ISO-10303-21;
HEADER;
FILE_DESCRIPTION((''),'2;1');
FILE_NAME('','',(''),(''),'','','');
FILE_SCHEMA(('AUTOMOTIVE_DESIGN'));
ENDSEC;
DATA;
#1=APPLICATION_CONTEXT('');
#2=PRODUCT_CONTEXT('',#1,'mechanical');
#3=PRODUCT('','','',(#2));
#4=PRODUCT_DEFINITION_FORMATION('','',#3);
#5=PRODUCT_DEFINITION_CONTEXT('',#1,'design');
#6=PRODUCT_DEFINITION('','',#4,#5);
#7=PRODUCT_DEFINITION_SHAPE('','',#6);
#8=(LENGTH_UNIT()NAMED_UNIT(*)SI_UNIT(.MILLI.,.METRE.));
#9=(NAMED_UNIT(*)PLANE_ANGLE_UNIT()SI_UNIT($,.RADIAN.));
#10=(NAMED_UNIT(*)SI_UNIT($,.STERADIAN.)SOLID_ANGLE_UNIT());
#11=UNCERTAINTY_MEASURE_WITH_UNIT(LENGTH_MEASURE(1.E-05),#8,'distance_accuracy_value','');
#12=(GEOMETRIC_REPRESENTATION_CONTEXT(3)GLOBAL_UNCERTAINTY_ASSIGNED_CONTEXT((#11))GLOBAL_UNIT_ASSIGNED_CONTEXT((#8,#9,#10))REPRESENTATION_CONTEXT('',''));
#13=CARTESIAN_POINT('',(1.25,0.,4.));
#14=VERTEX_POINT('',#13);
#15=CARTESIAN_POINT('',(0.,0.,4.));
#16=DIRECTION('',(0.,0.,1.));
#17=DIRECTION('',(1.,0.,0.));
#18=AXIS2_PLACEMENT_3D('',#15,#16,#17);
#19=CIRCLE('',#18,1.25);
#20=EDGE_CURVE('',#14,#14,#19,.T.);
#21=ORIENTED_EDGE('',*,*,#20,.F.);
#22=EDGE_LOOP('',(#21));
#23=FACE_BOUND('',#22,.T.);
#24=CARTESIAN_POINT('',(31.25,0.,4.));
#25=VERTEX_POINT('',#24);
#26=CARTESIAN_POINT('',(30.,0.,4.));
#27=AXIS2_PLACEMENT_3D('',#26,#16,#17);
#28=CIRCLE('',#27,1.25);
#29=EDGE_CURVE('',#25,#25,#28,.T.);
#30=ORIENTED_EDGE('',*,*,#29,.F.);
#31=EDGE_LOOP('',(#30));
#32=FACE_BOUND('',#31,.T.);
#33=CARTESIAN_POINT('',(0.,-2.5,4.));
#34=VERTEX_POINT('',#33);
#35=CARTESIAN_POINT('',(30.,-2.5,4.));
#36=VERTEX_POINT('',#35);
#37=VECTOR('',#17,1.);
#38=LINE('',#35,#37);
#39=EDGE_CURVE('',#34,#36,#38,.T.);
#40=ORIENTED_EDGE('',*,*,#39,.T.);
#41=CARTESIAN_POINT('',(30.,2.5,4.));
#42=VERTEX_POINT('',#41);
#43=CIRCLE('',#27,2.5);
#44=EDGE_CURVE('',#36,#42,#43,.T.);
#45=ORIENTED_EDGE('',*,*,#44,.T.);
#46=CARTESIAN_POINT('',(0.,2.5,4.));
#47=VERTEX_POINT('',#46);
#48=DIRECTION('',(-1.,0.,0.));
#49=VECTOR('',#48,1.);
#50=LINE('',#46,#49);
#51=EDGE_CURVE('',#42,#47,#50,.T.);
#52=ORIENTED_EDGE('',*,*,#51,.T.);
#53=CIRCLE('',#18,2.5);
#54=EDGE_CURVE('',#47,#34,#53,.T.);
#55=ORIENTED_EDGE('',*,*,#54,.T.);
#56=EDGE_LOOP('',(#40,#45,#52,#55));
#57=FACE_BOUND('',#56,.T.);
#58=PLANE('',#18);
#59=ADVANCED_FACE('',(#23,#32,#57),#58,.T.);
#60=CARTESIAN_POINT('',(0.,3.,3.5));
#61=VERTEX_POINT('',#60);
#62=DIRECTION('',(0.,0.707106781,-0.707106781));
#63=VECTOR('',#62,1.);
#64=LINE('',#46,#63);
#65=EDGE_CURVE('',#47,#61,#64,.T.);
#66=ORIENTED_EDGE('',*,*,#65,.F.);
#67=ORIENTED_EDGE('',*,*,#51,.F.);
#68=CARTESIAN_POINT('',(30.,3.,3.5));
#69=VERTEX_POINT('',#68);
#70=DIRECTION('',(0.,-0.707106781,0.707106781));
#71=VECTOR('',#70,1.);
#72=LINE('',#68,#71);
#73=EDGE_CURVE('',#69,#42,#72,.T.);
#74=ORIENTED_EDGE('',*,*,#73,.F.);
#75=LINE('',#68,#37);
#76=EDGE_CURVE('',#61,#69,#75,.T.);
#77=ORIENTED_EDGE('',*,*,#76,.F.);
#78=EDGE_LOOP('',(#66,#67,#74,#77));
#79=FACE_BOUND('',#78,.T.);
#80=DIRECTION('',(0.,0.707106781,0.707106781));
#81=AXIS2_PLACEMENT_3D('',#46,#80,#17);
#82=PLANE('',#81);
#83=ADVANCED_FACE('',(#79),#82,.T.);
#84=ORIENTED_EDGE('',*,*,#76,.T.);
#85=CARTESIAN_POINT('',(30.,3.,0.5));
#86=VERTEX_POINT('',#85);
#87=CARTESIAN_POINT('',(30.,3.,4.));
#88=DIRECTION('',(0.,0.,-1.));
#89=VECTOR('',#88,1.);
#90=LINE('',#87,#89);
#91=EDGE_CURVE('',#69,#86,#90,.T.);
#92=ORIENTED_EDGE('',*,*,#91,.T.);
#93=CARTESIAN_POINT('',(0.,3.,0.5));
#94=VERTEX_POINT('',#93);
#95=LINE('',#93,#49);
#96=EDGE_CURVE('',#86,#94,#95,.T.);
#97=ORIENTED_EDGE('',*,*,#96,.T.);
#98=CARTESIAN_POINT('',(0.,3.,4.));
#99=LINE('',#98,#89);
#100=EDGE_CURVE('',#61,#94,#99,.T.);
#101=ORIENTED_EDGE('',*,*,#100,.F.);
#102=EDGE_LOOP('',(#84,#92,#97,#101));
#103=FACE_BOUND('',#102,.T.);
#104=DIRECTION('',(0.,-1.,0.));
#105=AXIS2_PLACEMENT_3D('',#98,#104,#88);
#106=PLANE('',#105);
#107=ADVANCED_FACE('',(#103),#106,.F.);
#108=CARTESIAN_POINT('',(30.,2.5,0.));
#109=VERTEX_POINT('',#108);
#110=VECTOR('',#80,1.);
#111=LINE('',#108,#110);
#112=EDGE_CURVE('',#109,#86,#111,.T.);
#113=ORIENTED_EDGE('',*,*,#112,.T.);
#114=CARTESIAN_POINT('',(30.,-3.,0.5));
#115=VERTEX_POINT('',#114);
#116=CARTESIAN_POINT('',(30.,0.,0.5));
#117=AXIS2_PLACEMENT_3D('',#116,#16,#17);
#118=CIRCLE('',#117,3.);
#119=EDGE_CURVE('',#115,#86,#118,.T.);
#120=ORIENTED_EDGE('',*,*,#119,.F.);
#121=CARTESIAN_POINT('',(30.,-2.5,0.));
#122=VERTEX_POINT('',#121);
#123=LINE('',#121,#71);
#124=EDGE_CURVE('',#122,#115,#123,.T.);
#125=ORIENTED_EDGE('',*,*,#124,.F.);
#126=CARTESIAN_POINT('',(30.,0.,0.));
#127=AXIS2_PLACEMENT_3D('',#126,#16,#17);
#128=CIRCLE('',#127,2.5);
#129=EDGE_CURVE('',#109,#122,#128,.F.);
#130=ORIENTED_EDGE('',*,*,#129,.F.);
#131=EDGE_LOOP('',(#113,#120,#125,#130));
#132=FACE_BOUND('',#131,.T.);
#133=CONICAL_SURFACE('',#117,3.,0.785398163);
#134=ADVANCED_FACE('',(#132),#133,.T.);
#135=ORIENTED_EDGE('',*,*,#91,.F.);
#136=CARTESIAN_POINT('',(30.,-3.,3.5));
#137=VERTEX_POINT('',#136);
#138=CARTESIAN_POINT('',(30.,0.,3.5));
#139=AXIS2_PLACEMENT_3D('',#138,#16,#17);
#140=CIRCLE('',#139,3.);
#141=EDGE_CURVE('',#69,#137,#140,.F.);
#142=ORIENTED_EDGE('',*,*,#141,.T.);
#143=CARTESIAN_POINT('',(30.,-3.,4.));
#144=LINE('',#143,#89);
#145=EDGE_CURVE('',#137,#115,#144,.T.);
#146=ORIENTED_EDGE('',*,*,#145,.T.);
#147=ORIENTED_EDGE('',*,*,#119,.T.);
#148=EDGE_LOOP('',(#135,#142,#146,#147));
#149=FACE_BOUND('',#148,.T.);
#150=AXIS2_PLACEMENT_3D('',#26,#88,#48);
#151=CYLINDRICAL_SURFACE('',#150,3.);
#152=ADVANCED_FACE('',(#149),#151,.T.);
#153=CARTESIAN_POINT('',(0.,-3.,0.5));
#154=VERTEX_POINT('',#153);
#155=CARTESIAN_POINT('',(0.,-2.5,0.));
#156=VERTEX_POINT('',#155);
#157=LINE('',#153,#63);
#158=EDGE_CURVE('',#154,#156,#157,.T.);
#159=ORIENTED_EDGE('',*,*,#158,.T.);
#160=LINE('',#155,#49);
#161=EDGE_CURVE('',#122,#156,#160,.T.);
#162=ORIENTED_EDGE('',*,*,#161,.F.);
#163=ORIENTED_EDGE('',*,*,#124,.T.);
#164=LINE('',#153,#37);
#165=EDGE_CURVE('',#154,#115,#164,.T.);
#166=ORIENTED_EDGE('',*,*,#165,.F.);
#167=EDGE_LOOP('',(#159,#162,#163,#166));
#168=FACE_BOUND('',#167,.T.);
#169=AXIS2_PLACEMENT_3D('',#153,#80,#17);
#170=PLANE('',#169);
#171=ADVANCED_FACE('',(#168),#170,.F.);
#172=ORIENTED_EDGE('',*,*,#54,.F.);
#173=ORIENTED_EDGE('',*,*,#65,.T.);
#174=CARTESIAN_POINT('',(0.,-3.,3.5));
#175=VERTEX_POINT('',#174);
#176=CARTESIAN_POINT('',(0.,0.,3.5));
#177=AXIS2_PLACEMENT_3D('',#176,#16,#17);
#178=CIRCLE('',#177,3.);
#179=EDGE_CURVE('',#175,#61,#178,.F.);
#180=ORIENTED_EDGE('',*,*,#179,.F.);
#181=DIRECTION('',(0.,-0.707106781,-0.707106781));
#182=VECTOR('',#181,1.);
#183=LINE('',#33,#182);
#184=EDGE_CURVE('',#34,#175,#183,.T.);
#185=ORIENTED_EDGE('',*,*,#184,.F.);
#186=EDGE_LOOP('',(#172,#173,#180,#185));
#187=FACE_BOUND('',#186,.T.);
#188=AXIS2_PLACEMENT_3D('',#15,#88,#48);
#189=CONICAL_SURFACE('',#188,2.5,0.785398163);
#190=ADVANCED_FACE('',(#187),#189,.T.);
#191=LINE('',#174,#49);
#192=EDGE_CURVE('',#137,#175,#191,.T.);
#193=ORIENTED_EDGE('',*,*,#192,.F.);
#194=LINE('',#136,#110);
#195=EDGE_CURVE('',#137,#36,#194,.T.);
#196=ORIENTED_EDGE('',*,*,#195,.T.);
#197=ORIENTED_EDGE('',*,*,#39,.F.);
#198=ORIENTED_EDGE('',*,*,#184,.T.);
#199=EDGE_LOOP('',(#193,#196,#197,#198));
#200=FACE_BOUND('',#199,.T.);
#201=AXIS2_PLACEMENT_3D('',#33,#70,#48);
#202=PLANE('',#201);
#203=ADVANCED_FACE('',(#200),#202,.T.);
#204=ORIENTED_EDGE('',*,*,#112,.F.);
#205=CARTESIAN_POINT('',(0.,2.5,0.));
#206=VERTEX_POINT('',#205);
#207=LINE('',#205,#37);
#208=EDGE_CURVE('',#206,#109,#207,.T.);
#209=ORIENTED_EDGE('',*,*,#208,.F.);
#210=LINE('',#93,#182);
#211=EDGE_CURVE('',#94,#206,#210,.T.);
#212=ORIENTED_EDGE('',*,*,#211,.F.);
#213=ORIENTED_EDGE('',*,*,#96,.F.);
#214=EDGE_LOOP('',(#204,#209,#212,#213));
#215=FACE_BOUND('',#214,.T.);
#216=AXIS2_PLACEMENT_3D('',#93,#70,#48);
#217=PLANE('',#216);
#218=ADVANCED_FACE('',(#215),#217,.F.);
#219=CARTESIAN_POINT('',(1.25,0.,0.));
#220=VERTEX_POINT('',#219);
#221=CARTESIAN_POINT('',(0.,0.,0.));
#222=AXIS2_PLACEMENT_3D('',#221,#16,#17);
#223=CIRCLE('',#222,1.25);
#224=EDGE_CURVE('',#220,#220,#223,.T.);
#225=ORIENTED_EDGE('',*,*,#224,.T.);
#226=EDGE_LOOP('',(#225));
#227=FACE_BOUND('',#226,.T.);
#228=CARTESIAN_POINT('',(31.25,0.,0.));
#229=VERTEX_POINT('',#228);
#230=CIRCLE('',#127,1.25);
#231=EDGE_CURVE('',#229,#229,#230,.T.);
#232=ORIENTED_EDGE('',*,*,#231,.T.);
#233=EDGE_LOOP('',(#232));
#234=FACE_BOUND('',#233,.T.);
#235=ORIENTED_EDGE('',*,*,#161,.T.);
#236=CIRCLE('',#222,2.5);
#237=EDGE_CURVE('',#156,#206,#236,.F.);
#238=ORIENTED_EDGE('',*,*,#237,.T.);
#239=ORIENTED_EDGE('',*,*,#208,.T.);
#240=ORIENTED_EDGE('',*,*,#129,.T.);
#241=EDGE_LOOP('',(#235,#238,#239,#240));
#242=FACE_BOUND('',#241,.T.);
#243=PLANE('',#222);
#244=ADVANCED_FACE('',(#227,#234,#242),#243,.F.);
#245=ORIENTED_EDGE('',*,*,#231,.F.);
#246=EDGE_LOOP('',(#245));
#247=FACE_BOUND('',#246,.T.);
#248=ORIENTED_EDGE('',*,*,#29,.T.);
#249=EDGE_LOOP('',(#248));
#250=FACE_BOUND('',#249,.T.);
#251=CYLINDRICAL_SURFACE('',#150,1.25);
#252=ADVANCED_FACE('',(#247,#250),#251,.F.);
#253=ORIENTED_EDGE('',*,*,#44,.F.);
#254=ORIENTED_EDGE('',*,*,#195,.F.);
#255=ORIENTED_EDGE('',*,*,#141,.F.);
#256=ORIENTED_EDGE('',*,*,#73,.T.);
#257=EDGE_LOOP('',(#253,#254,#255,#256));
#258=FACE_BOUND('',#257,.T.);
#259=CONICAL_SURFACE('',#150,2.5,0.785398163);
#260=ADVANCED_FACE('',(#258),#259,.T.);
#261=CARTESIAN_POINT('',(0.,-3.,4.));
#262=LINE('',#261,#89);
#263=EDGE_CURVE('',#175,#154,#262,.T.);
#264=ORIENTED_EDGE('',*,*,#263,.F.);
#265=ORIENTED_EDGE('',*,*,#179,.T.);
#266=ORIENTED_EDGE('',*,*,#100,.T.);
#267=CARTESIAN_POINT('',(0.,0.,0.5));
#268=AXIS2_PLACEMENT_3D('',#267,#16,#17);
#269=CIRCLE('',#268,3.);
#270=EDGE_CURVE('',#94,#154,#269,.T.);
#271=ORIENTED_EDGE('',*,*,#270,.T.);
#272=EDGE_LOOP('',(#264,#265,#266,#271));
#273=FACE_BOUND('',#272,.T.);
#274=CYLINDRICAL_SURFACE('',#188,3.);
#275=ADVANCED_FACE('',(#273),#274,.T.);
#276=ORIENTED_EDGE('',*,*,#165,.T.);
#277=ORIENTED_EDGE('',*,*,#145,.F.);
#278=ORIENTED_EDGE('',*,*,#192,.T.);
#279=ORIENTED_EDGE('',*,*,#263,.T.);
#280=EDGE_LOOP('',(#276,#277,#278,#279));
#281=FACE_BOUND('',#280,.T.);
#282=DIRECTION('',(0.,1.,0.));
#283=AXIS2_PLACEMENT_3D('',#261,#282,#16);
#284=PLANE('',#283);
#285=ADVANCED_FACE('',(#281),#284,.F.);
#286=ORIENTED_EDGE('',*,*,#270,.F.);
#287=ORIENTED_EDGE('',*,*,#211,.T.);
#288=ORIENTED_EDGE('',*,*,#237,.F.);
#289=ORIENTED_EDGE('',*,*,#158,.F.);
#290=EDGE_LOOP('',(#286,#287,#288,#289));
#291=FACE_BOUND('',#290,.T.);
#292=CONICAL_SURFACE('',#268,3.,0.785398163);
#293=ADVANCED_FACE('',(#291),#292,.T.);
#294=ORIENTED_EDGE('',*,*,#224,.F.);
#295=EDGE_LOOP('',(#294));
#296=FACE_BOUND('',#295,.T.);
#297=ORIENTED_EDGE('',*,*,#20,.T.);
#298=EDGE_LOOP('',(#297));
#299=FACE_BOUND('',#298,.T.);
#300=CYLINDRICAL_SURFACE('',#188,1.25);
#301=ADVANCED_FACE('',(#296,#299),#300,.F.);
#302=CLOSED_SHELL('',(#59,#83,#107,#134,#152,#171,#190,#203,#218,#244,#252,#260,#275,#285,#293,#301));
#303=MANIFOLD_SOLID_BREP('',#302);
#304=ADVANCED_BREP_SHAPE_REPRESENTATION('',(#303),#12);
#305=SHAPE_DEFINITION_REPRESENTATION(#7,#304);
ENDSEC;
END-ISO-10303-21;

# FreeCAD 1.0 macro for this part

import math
import FreeCAD as App
import Part
import Sketcher

V = App.Vector


def edges_at(feature, points):
    """Names of the edges that pass closest to the given points."""
    edges = feature.Shape.Edges
    near = lambda p: min(range(len(edges)), key=lambda i: edges[i].distToShape(Part.Vertex(*p))[0])
    return sorted({f"Edge{near(p) + 1}" for p in points})

doc = App.newDocument("Part")
params = doc.addObject("Spreadsheet::Sheet", "Params")
for row, (alias, value) in enumerate([
    ("sketch1_radius", "3 mm"),
    ("sketch1_diameter", "2.5 mm"),
    ("sketch1_width", "30 mm"),
    ("pad1_length", "4 mm"),
    ("chamfer_size", "0.5 mm"),
], start=1):
    params.set(f"A{row}", alias)
    params.set(f"B{row}", "=" + value)
    params.setAlias(f"B{row}", alias)

body = doc.addObject("PartDesign::Body", "Body")

# Sketch on XY plane
sketch1 = doc.addObject("Sketcher::SketchObject", "Sketch")
body.addObject(sketch1)
sketch1.AttachmentSupport = (doc.XY_Plane, [""])
sketch1.MapMode = "FlatFace"
sketch1.addGeometry(Part.LineSegment(V(30, 3, 0), V(0, 3, 0)), False)
sketch1.addGeometry(Part.ArcOfCircle(Part.Circle(V(0, 0, 0), V(0, 0, 1), 3), math.radians(90), math.radians(270)), False)
sketch1.addGeometry(Part.LineSegment(V(0, -3, 0), V(30, -3, 0)), False)
sketch1.addGeometry(Part.ArcOfCircle(Part.Circle(V(30, 0, 0), V(0, 0, 1), 3), math.radians(-90), math.radians(90)), False)
sketch1.addGeometry(Part.Circle(V(30, 0, 0), V(0, 0, 1), 1.2), False)
sketch1.addGeometry(Part.Circle(V(0, 0, 0), V(0, 0, 1), 1.2), False)
sketch1.addConstraint(Sketcher.Constraint("Tangent", 0, 2, 1, 1))
sketch1.addConstraint(Sketcher.Constraint("Tangent", 1, 2, 2, 1))
sketch1.addConstraint(Sketcher.Constraint("Tangent", 2, 2, 3, 1))
sketch1.addConstraint(Sketcher.Constraint("Tangent", 3, 2, 0, 1))
sketch1.addConstraint(Sketcher.Constraint("Horizontal", 0))
sketch1.addConstraint(Sketcher.Constraint("Horizontal", 2))
sketch1.addConstraint(Sketcher.Constraint("Coincident", 1, 3, -1, 1))
sketch1.addConstraint(Sketcher.Constraint("Coincident", 5, 3, -1, 1))
sketch1.addConstraint(Sketcher.Constraint("Coincident", 4, 3, 3, 3))
sketch1.addConstraint(Sketcher.Constraint("Equal", 4, 5))
sketch1.addConstraint(Sketcher.Constraint("Radius", 1, 3.0))
sketch1.addConstraint(Sketcher.Constraint("Diameter", 4, 2.5))
sketch1.addConstraint(Sketcher.Constraint("DistanceX", 0, 2, 0, 1, 30.0))
sketch1.setExpression("Constraints[10]", "Params.sketch1_radius")
sketch1.setExpression("Constraints[11]", "Params.sketch1_diameter")
sketch1.setExpression("Constraints[12]", "Params.sketch1_width")
pad1 = doc.addObject("PartDesign::Pad", "Pad")
body.addObject(pad1)
pad1.Profile = sketch1
pad1.setExpression("Length", "Params.pad1_length")
doc.recompute()

chamfer = doc.addObject("PartDesign::Chamfer", "Chamfer")
body.addObject(chamfer)
chamfer.Base = (pad1, edges_at(pad1, [
    (33, 0, 4),
    (15, 3, 4),
    (-3, 0, 4),
    (15, 3, 0),
    (33, 0, 0),
    (15, -3, 0),
    (-3, 0, 0),
    (15, -3, 4),
]))
chamfer.setExpression("Size", "Params.chamfer_size")

doc.recompute()
